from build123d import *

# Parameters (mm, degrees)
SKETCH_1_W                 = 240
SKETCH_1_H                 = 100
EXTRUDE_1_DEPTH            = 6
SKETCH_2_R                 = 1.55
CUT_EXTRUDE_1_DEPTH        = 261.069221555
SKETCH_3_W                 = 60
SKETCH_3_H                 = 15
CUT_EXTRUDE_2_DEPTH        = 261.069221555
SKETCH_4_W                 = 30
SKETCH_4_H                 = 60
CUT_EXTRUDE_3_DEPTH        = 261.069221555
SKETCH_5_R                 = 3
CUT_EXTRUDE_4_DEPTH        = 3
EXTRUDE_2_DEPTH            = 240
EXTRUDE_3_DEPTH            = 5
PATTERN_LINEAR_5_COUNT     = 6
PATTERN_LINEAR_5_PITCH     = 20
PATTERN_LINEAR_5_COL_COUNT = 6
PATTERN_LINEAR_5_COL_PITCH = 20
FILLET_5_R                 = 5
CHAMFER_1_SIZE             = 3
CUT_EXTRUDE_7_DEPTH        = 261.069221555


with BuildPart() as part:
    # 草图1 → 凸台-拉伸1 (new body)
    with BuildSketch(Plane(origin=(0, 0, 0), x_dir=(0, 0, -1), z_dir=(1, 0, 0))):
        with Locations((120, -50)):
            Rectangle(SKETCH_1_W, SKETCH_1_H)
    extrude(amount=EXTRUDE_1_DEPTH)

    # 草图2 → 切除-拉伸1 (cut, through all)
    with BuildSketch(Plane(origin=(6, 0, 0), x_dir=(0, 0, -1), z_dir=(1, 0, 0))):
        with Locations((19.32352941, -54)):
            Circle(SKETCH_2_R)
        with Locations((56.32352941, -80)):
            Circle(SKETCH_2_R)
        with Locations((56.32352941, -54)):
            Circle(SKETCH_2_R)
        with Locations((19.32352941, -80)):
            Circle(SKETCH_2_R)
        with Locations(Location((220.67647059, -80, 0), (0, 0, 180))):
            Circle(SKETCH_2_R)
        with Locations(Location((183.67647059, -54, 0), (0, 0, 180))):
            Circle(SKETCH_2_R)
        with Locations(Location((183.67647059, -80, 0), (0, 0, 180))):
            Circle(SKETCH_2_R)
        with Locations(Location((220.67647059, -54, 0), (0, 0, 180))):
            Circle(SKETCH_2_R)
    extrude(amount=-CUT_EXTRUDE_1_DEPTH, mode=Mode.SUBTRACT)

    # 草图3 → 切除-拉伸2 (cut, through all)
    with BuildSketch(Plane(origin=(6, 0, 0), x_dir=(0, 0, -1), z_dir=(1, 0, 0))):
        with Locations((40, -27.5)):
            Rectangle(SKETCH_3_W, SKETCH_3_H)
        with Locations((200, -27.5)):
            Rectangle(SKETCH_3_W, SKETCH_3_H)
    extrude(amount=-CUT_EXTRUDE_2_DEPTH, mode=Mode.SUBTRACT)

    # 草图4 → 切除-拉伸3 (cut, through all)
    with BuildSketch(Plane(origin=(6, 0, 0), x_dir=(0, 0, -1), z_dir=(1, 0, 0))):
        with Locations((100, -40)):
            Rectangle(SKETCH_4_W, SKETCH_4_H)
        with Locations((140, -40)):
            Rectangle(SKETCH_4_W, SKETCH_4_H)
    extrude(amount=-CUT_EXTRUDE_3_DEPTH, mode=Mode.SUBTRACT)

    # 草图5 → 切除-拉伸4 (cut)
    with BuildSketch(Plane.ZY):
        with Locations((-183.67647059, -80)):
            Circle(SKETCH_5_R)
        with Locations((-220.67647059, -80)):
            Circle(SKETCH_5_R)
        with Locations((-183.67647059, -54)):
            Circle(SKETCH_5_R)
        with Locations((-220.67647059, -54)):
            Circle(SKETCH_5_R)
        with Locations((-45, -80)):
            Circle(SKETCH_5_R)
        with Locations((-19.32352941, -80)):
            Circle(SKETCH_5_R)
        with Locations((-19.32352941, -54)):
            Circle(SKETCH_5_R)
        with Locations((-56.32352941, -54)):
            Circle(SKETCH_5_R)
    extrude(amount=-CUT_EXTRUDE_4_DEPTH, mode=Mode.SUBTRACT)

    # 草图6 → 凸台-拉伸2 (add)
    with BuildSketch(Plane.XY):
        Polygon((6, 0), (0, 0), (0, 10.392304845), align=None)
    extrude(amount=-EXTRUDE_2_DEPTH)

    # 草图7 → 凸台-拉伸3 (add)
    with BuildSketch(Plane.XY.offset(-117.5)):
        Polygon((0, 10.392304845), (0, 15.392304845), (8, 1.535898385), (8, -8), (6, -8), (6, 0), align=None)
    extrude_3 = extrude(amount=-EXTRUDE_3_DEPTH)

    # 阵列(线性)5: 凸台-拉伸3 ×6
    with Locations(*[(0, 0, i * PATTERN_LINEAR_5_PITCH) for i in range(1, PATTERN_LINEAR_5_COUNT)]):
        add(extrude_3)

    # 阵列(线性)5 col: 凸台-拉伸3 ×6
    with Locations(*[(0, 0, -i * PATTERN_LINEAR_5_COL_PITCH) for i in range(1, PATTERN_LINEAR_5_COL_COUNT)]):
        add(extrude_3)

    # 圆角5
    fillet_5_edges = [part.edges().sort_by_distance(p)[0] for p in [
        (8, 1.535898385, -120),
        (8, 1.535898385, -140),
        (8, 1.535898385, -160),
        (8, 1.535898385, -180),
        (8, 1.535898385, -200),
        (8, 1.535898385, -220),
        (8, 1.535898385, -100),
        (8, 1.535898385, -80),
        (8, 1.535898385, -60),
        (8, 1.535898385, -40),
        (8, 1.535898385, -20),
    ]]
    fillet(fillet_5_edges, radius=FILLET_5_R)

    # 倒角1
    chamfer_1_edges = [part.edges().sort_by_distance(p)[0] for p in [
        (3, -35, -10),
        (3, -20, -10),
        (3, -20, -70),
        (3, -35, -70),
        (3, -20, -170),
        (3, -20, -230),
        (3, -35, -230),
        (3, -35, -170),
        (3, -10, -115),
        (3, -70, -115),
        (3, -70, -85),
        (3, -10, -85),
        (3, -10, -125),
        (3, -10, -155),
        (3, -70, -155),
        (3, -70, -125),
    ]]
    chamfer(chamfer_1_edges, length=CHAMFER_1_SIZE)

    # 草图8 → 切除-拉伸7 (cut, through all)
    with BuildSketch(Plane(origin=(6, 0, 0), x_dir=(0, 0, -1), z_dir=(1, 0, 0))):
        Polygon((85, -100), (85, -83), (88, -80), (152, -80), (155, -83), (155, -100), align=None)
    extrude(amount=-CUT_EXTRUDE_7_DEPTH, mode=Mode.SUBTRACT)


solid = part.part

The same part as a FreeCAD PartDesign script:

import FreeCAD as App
import Part
import Sketcher
Q = App.Units.Quantity


def edges_at(feature, points):
    """Names of the edges that pass closest to the given points."""
    edges = feature.Shape.Edges
    near = lambda p: min(range(len(edges)), key=lambda i: edges[i].distToShape(Part.Vertex(*p))[0])
    return sorted({f"Edge{near(p) + 1}" for p in points})

doc = App.newDocument("Part")
body = doc.addObject("PartDesign::Body", "Body")

sketch1 = body.newObject("Sketcher::SketchObject", "Sketch")
sketch1.AttachmentSupport = (doc.getObject("YZ_Plane"), [""])
sketch1.MapMode = "FlatFace"
sketch1.addGeometry(Part.LineSegment(App.Vector(0, 0, 0), App.Vector(-100, 0, 0)), False)
sketch1.addGeometry(Part.LineSegment(App.Vector(-100, 0, 0), App.Vector(-100, -240, 0)), False)
sketch1.addGeometry(Part.LineSegment(App.Vector(-100, -240, 0), App.Vector(0, -240, 0)), False)
sketch1.addGeometry(Part.LineSegment(App.Vector(0, -240, 0), App.Vector(0, 0, 0)), False)
sketch1.addConstraint(Sketcher.Constraint("Coincident", 0, 2, 1, 1))
sketch1.addConstraint(Sketcher.Constraint("Coincident", 1, 2, 2, 1))
sketch1.addConstraint(Sketcher.Constraint("Coincident", 2, 2, 3, 1))
sketch1.addConstraint(Sketcher.Constraint("Coincident", 3, 2, 0, 1))
sketch1.addConstraint(Sketcher.Constraint("Horizontal", 0))
sketch1.addConstraint(Sketcher.Constraint("Vertical", 1))
sketch1.addConstraint(Sketcher.Constraint("Horizontal", 2))
sketch1.addConstraint(Sketcher.Constraint("Vertical", 3))
sketch1.addConstraint(Sketcher.Constraint("Coincident", 3, 2, -1, 1))
sketch1.addConstraint(Sketcher.Constraint("DistanceX", 0, 2, 0, 1, Q("100 mm")))
sketch1.addConstraint(Sketcher.Constraint("DistanceY", 1, 2, 1, 1, Q("240 mm")))
pad1 = body.newObject("PartDesign::Pad", "Pad")
pad1.Profile = sketch1
pad1.Length = 6

sketch2 = body.newObject("Sketcher::SketchObject", "Sketch001")
sketch2.AttachmentSupport = (doc.getObject("YZ_Plane"), [""])
sketch2.MapMode = "FlatFace"
sketch2.AttachmentOffset = App.Placement(App.Vector(0, 0, 6), App.Rotation())
sketch2.addGeometry(Part.Circle(App.Vector(-54, -19.3, 0), App.Vector(0, 0, 1), 1.6), False)
sketch2.addGeometry(Part.Circle(App.Vector(-80, -56.3, 0), App.Vector(0, 0, 1), 1.6), False)
sketch2.addGeometry(Part.Circle(App.Vector(-54, -56.3, 0), App.Vector(0, 0, 1), 1.6), False)
sketch2.addGeometry(Part.Circle(App.Vector(-80, -19.3, 0), App.Vector(0, 0, 1), 1.6), False)
sketch2.addGeometry(Part.Circle(App.Vector(-80, -220.7, 0), App.Vector(0, 0, 1), 1.6), False)
sketch2.addGeometry(Part.Circle(App.Vector(-54, -183.7, 0), App.Vector(0, 0, 1), 1.6), False)
sketch2.addGeometry(Part.Circle(App.Vector(-80, -183.7, 0), App.Vector(0, 0, 1), 1.6), False)
sketch2.addGeometry(Part.Circle(App.Vector(-54, -220.7, 0), App.Vector(0, 0, 1), 1.6), False)
sketch2.addConstraint(Sketcher.Constraint("Equal", 0, 1))
sketch2.addConstraint(Sketcher.Constraint("Equal", 1, 2))
sketch2.addConstraint(Sketcher.Constraint("Equal", 2, 3))
sketch2.addConstraint(Sketcher.Constraint("Equal", 3, 4))
sketch2.addConstraint(Sketcher.Constraint("Equal", 4, 5))
sketch2.addConstraint(Sketcher.Constraint("Equal", 5, 6))
sketch2.addConstraint(Sketcher.Constraint("Equal", 6, 7))
sketch2.addConstraint(Sketcher.Constraint("Horizontal", 1, 3, 2, 3))
sketch2.addConstraint(Sketcher.Constraint("Horizontal", 0, 3, 3, 3))
sketch2.addConstraint(Sketcher.Constraint("Horizontal", 5, 3, 6, 3))
sketch2.addConstraint(Sketcher.Constraint("Horizontal", 4, 3, 7, 3))
sketch2.addConstraint(Sketcher.Constraint("Vertical", 0, 3, 2, 3))
sketch2.addConstraint(Sketcher.Constraint("Vertical", 1, 3, 3, 3))
sketch2.addConstraint(Sketcher.Constraint("Vertical", 3, 3, 4, 3))
sketch2.addConstraint(Sketcher.Constraint("Vertical", 2, 3, 5, 3))
sketch2.addConstraint(Sketcher.Constraint("Vertical", 4, 3, 6, 3))
sketch2.addConstraint(Sketcher.Constraint("Vertical", 5, 3, 7, 3))
sketch2.addConstraint(Sketcher.Constraint("Diameter", 0, Q("3.1 mm")))
sketch2.addConstraint(Sketcher.Constraint("DistanceX", 0, 3, -1, 1, Q("54 mm")))
sketch2.addConstraint(Sketcher.Constraint("DistanceX", 1, 3, -1, 1, Q("80 mm")))
sketch2.addConstraint(Sketcher.Constraint("DistanceY", 1, 3, 0, 3, Q("37 mm")))
sketch2.addConstraint(Sketcher.Constraint("DistanceY", 4, 3, 5, 3, Q("37 mm")))
sketch2.addConstraint(Sketcher.Constraint("DistanceY", 0, 3, -1, 1, Q("19.323529 mm")))
sketch2.addConstraint(Sketcher.Constraint("DistanceY", 4, 3, -1, 1, Q("220.676471 mm")))
pocket1 = body.newObject("PartDesign::Pocket", "Pocket")
pocket1.Profile = sketch2
pocket1.Type = "ThroughAll"

sketch3 = body.newObject("Sketcher::SketchObject", "Sketch002")
sketch3.AttachmentSupport = (doc.getObject("YZ_Plane"), [""])
sketch3.MapMode = "FlatFace"
sketch3.AttachmentOffset = App.Placement(App.Vector(0, 0, 6), App.Rotation())
sketch3.addGeometry(Part.LineSegment(App.Vector(-20, -10, 0), App.Vector(-35, -10, 0)), False)
sketch3.addGeometry(Part.LineSegment(App.Vector(-35, -10, 0), App.Vector(-35, -70, 0)), False)
sketch3.addGeometry(Part.LineSegment(App.Vector(-35, -70, 0), App.Vector(-20, -70, 0)), False)
sketch3.addGeometry(Part.LineSegment(App.Vector(-20, -70, 0), App.Vector(-20, -10, 0)), False)
sketch3.addGeometry(Part.LineSegment(App.Vector(-20, -170, 0), App.Vector(-35, -170, 0)), False)
sketch3.addGeometry(Part.LineSegment(App.Vector(-35, -170, 0), App.Vector(-35, -230, 0)), False)
sketch3.addGeometry(Part.LineSegment(App.Vector(-35, -230, 0), App.Vector(-20, -230, 0)), False)
sketch3.addGeometry(Part.LineSegment(App.Vector(-20, -230, 0), App.Vector(-20, -170, 0)), False)
sketch3.addConstraint(Sketcher.Constraint("Coincident", 0, 2, 1, 1))
sketch3.addConstraint(Sketcher.Constraint("Coincident", 1, 2, 2, 1))
sketch3.addConstraint(Sketcher.Constraint("Coincident", 2, 2, 3, 1))
sketch3.addConstraint(Sketcher.Constraint("Coincident", 3, 2, 0, 1))
sketch3.addConstraint(Sketcher.Constraint("Coincident", 4, 2, 5, 1))
sketch3.addConstraint(Sketcher.Constraint("Coincident", 5, 2, 6, 1))
sketch3.addConstraint(Sketcher.Constraint("Coincident", 6, 2, 7, 1))
sketch3.addConstraint(Sketcher.Constraint("Coincident", 7, 2, 4, 1))
sketch3.addConstraint(Sketcher.Constraint("Horizontal", 0))
sketch3.addConstraint(Sketcher.Constraint("Vertical", 1))
sketch3.addConstraint(Sketcher.Constraint("Horizontal", 2))
sketch3.addConstraint(Sketcher.Constraint("Vertical", 3))
sketch3.addConstraint(Sketcher.Constraint("Horizontal", 4))
sketch3.addConstraint(Sketcher.Constraint("Vertical", 5))
sketch3.addConstraint(Sketcher.Constraint("Horizontal", 6))
sketch3.addConstraint(Sketcher.Constraint("Vertical", 7))
sketch3.addConstraint(Sketcher.Constraint("Vertical", 1, 2, 4, 2))
sketch3.addConstraint(Sketcher.Constraint("Vertical", 3, 2, 6, 2))
sketch3.addConstraint(Sketcher.Constraint("Equal", 3, 5))
sketch3.addConstraint(Sketcher.Constraint("DistanceX", 0, 2, 0, 1, Q("15 mm")))
sketch3.addConstraint(Sketcher.Constraint("DistanceY", 1, 2, 1, 1, Q("60 mm")))
sketch3.addConstraint(Sketcher.Constraint("DistanceX", 0, 2, -1, 1, Q("35 mm")))
sketch3.addConstraint(Sketcher.Constraint("DistanceY", 0, 2, -1, 1, Q("10 mm")))
sketch3.addConstraint(Sketcher.Constraint("DistanceY", 4, 2, -1, 1, Q("170 mm")))
pocket2 = body.newObject("PartDesign::Pocket", "Pocket001")
pocket2.Profile = sketch3
pocket2.Type = "ThroughAll"

sketch4 = body.newObject("Sketcher::SketchObject", "Sketch003")
sketch4.AttachmentSupport = (doc.getObject("YZ_Plane"), [""])
sketch4.MapMode = "FlatFace"
sketch4.AttachmentOffset = App.Placement(App.Vector(0, 0, 6), App.Rotation())
sketch4.addGeometry(Part.LineSegment(App.Vector(-10, -85, 0), App.Vector(-70, -85, 0)), False)
sketch4.addGeometry(Part.LineSegment(App.Vector(-70, -85, 0), App.Vector(-70, -115, 0)), False)
sketch4.addGeometry(Part.LineSegment(App.Vector(-70, -115, 0), App.Vector(-10, -115, 0)), False)
sketch4.addGeometry(Part.LineSegment(App.Vector(-10, -115, 0), App.Vector(-10, -85, 0)), False)
sketch4.addGeometry(Part.LineSegment(App.Vector(-10, -125, 0), App.Vector(-70, -125, 0)), False)
sketch4.addGeometry(Part.LineSegment(App.Vector(-70, -125, 0), App.Vector(-70, -155, 0)), False)
sketch4.addGeometry(Part.LineSegment(App.Vector(-70, -155, 0), App.Vector(-10, -155, 0)), False)
sketch4.addGeometry(Part.LineSegment(App.Vector(-10, -155, 0), App.Vector(-10, -125, 0)), False)
sketch4.addConstraint(Sketcher.Constraint("Coincident", 0, 2, 1, 1))
sketch4.addConstraint(Sketcher.Constraint("Coincident", 1, 2, 2, 1))
sketch4.addConstraint(Sketcher.Constraint("Coincident", 2, 2, 3, 1))
sketch4.addConstraint(Sketcher.Constraint("Coincident", 3, 2, 0, 1))
sketch4.addConstraint(Sketcher.Constraint("Coincident", 4, 2, 5, 1))
sketch4.addConstraint(Sketcher.Constraint("Coincident", 5, 2, 6, 1))
sketch4.addConstraint(Sketcher.Constraint("Coincident", 6, 2, 7, 1))
sketch4.addConstraint(Sketcher.Constraint("Coincident", 7, 2, 4, 1))
sketch4.addConstraint(Sketcher.Constraint("Horizontal", 0))
sketch4.addConstraint(Sketcher.Constraint("Vertical", 1))
sketch4.addConstraint(Sketcher.Constraint("Horizontal", 2))
sketch4.addConstraint(Sketcher.Constraint("Vertical", 3))
sketch4.addConstraint(Sketcher.Constraint("Horizontal", 4))
sketch4.addConstraint(Sketcher.Constraint("Vertical", 5))
sketch4.addConstraint(Sketcher.Constraint("Horizontal", 6))
sketch4.addConstraint(Sketcher.Constraint("Vertical", 7))
sketch4.addConstraint(Sketcher.Constraint("Vertical", 1, 2, 4, 2))
sketch4.addConstraint(Sketcher.Constraint("Vertical", 3, 2, 6, 2))
sketch4.addConstraint(Sketcher.Constraint("Equal", 3, 5))
sketch4.addConstraint(Sketcher.Constraint("DistanceX", 0, 2, 0, 1, Q("60 mm")))
sketch4.addConstraint(Sketcher.Constraint("DistanceY", 1, 2, 1, 1, Q("30 mm")))
sketch4.addConstraint(Sketcher.Constraint("DistanceX", 0, 2, -1, 1, Q("70 mm")))
sketch4.addConstraint(Sketcher.Constraint("DistanceY", 0, 2, -1, 1, Q("85 mm")))
sketch4.addConstraint(Sketcher.Constraint("DistanceY", 4, 2, -1, 1, Q("125 mm")))
pocket3 = body.newObject("PartDesign::Pocket", "Pocket002")
pocket3.Profile = sketch4
pocket3.Type = "ThroughAll"

sketch5 = body.newObject("Sketcher::SketchObject", "Sketch004")
sketch5.AttachmentSupport = (doc.getObject("YZ_Plane"), [""])
sketch5.MapMode = "FlatFace"
sketch5.addGeometry(Part.Circle(App.Vector(-80, -183.7, 0), App.Vector(0, 0, 1), 3), False)
sketch5.addGeometry(Part.Circle(App.Vector(-80, -220.7, 0), App.Vector(0, 0, 1), 3), False)
sketch5.addGeometry(Part.Circle(App.Vector(-54, -183.7, 0), App.Vector(0, 0, 1), 3), False)
sketch5.addGeometry(Part.Circle(App.Vector(-54, -220.7, 0), App.Vector(0, 0, 1), 3), False)
sketch5.addGeometry(Part.Circle(App.Vector(-80, -45, 0), App.Vector(0, 0, 1), 3), False)
sketch5.addGeometry(Part.Circle(App.Vector(-80, -19.3, 0), App.Vector(0, 0, 1), 3), False)
sketch5.addGeometry(Part.Circle(App.Vector(-54, -19.3, 0), App.Vector(0, 0, 1), 3), False)
sketch5.addGeometry(Part.Circle(App.Vector(-54, -56.3, 0), App.Vector(0, 0, 1), 3), False)
sketch5.addConstraint(Sketcher.Constraint("Equal", 0, 1))
sketch5.addConstraint(Sketcher.Constraint("Equal", 1, 2))
sketch5.addConstraint(Sketcher.Constraint("Equal", 2, 3))
sketch5.addConstraint(Sketcher.Constraint("Equal", 3, 4))
sketch5.addConstraint(Sketcher.Constraint("Equal", 4, 5))
sketch5.addConstraint(Sketcher.Constraint("Equal", 5, 6))
sketch5.addConstraint(Sketcher.Constraint("Equal", 6, 7))
sketch5.addConstraint(Sketcher.Constraint("Horizontal", 0, 3, 2, 3))
sketch5.addConstraint(Sketcher.Constraint("Horizontal", 1, 3, 3, 3))
sketch5.addConstraint(Sketcher.Constraint("Horizontal", 5, 3, 6, 3))
sketch5.addConstraint(Sketcher.Constraint("Vertical", 0, 3, 1, 3))
sketch5.addConstraint(Sketcher.Constraint("Vertical", 2, 3, 3, 3))
sketch5.addConstraint(Sketcher.Constraint("Vertical", 1, 3, 4, 3))
sketch5.addConstraint(Sketcher.Constraint("Vertical", 4, 3, 5, 3))
sketch5.addConstraint(Sketcher.Constraint("Vertical", 3, 3, 6, 3))
sketch5.addConstraint(Sketcher.Constraint("Vertical", 6, 3, 7, 3))
sketch5.addConstraint(Sketcher.Constraint("Diameter", 0, Q("6 mm")))
sketch5.addConstraint(Sketcher.Constraint("DistanceX", 0, 3, -1, 1, Q("80 mm")))
sketch5.addConstraint(Sketcher.Constraint("DistanceX", 2, 3, -1, 1, Q("54 mm")))
sketch5.addConstraint(Sketcher.Constraint("DistanceY", 4, 3, -1, 1, Q("45 mm")))
sketch5.addConstraint(Sketcher.Constraint("DistanceY", 1, 3, 0, 3, Q("37 mm")))
sketch5.addConstraint(Sketcher.Constraint("DistanceY", 7, 3, 6, 3, Q("37 mm")))
sketch5.addConstraint(Sketcher.Constraint("DistanceY", 0, 3, -1, 1, Q("183.676471 mm")))
sketch5.addConstraint(Sketcher.Constraint("DistanceY", 5, 3, -1, 1, Q("19.323529 mm")))
pocket4 = body.newObject("PartDesign::Pocket", "Pocket003")
pocket4.Profile = sketch5
pocket4.Length = 3
pocket4.Reversed = True

sketch6 = body.newObject("Sketcher::SketchObject", "Sketch005")
sketch6.AttachmentSupport = (doc.getObject("XY_Plane"), [""])
sketch6.MapMode = "FlatFace"
sketch6.addGeometry(Part.LineSegment(App.Vector(0, 0, 0), App.Vector(6, 0, 0)), False)
sketch6.addGeometry(Part.LineSegment(App.Vector(6, 0, 0), App.Vector(0, 10, 0)), False)
sketch6.addGeometry(Part.LineSegment(App.Vector(0, 10, 0), App.Vector(0, 0, 0)), False)
sketch6.addConstraint(Sketcher.Constraint("Coincident", 0, 2, 1, 1))
sketch6.addConstraint(Sketcher.Constraint("Coincident", 1, 2, 2, 1))
sketch6.addConstraint(Sketcher.Constraint("Coincident", 2, 2, 0, 1))
sketch6.addConstraint(Sketcher.Constraint("Horizontal", 0))
sketch6.addConstraint(Sketcher.Constraint("Vertical", 2))
sketch6.addConstraint(Sketcher.Constraint("Coincident", 2, 2, -1, 1))
sketch6.addConstraint(Sketcher.Constraint("DistanceX", 0, 1, 0, 2, Q("6 mm")))
sketch6.addConstraint(Sketcher.Constraint("Angle", 1, Q("120 deg")))
pad2 = body.newObject("PartDesign::Pad", "Pad001")
pad2.Profile = sketch6
pad2.Length = 240
pad2.Reversed = True

sketch7 = body.newObject("Sketcher::SketchObject", "Sketch006")
sketch7.AttachmentSupport = (doc.getObject("XY_Plane"), [""])
sketch7.MapMode = "FlatFace"
sketch7.AttachmentOffset = App.Placement(App.Vector(0, 0, -117.5), App.Rotation())
sketch7.addGeometry(Part.LineSegment(App.Vector(0, 15.4, 0), App.Vector(0, 10.4, 0)), False)
sketch7.addGeometry(Part.LineSegment(App.Vector(0, 10.4, 0), App.Vector(6, 0, 0)), False)
sketch7.addGeometry(Part.LineSegment(App.Vector(6, 0, 0), App.Vector(6, -8, 0)), False)
sketch7.addGeometry(Part.LineSegment(App.Vector(6, -8, 0), App.Vector(8, -8, 0)), False)
sketch7.addGeometry(Part.LineSegment(App.Vector(8, -8, 0), App.Vector(8, 1.5, 0)), False)
sketch7.addGeometry(Part.LineSegment(App.Vector(8, 1.5, 0), App.Vector(0, 15.4, 0)), False)
sketch7.addConstraint(Sketcher.Constraint("Coincident", 0, 2, 1, 1))
sketch7.addConstraint(Sketcher.Constraint("Coincident", 1, 2, 2, 1))
sketch7.addConstraint(Sketcher.Constraint("Coincident", 2, 2, 3, 1))
sketch7.addConstraint(Sketcher.Constraint("Coincident", 3, 2, 4, 1))
sketch7.addConstraint(Sketcher.Constraint("Coincident", 4, 2, 5, 1))
sketch7.addConstraint(Sketcher.Constraint("Coincident", 5, 2, 0, 1))
sketch7.addConstraint(Sketcher.Constraint("Vertical", 0))
sketch7.addConstraint(Sketcher.Constraint("Vertical", 2))
sketch7.addConstraint(Sketcher.Constraint("Horizontal", 3))
sketch7.addConstraint(Sketcher.Constraint("Vertical", 4))
sketch7.addConstraint(Sketcher.Constraint("PointOnObject", 0, 2, -2))
sketch7.addConstraint(Sketcher.Constraint("PointOnObject", 1, 2, -1))
sketch7.addConstraint(Sketcher.Constraint("Parallel", 1, 5))
sketch7.addConstraint(Sketcher.Constraint("DistanceX", 3, 1, 3, 2, Q("2 mm")))
sketch7.addConstraint(Sketcher.Constraint("DistanceY", 0, 2, 0, 1, Q("5 mm")))
sketch7.addConstraint(Sketcher.Constraint("DistanceY", 2, 2, 2, 1, Q("8 mm")))
sketch7.addConstraint(Sketcher.Constraint("Angle", 1, Q("-60 deg")))
sketch7.addConstraint(Sketcher.Constraint("Distance", 1, Q("12 mm")))
pad3 = body.newObject("PartDesign::Pad", "Pad002")
pad3.Profile = sketch7
pad3.Length = 5
pad3.Reversed = True
doc.recompute()

linearpattern = body.newObject("PartDesign::LinearPattern", "LinearPattern")
linearpattern.Originals = [pad3]
linearpattern.Direction = (doc.getObject("Z_Axis"), [""])
linearpattern.Mode = "offset"
linearpattern.Offset = 20
linearpattern.Occurrences = 6
body.Tip = linearpattern
doc.recompute()

linearpattern2 = body.newObject("PartDesign::LinearPattern", "LinearPattern001")
linearpattern2.Originals = [pad3]
linearpattern2.Direction = (doc.getObject("Z_Axis"), [""])
linearpattern2.Mode = "offset"
linearpattern2.Offset = 20
linearpattern2.Occurrences = 6
linearpattern2.Reversed = True
body.Tip = linearpattern2
doc.recompute()

fillet = body.newObject("PartDesign::Fillet", "Fillet")
fillet.Base = (linearpattern2, edges_at(linearpattern2, [
    (8, 1.536, -120),
    (8, 1.536, -140),
    (8, 1.536, -160),
    (8, 1.536, -180),
    (8, 1.536, -200),
    (8, 1.536, -220),
    (8, 1.536, -100),
    (8, 1.536, -80),
    (8, 1.536, -60),
    (8, 1.536, -40),
    (8, 1.536, -20),
]))
fillet.Radius = 5
doc.recompute()

chamfer = body.newObject("PartDesign::Chamfer", "Chamfer")
chamfer.Base = (fillet, edges_at(fillet, [
    (3, -35, -10),
    (3, -20, -10),
    (3, -20, -70),
    (3, -35, -70),
    (3, -20, -170),
    (3, -20, -230),
    (3, -35, -230),
    (3, -35, -170),
    (3, -10, -115),
    (3, -70, -115),
    (3, -70, -85),
    (3, -10, -85),
    (3, -10, -125),
    (3, -10, -155),
    (3, -70, -155),
    (3, -70, -125),
]))
chamfer.Size = 3

sketch8 = body.newObject("Sketcher::SketchObject", "Sketch007")
sketch8.AttachmentSupport = (doc.getObject("YZ_Plane"), [""])
sketch8.MapMode = "FlatFace"
sketch8.AttachmentOffset = App.Placement(App.Vector(0, 0, 6), App.Rotation())
sketch8.addGeometry(Part.LineSegment(App.Vector(-83, -85, 0), App.Vector(-100, -85, 0)), False)
sketch8.addGeometry(Part.LineSegment(App.Vector(-100, -85, 0), App.Vector(-100, -155, 0)), False)
sketch8.addGeometry(Part.LineSegment(App.Vector(-100, -155, 0), App.Vector(-83, -155, 0)), False)
sketch8.addGeometry(Part.LineSegment(App.Vector(-83, -155, 0), App.Vector(-80, -152, 0)), False)
sketch8.addGeometry(Part.LineSegment(App.Vector(-80, -152, 0), App.Vector(-80, -88, 0)), False)
sketch8.addGeometry(Part.LineSegment(App.Vector(-80, -88, 0), App.Vector(-83, -85, 0)), False)
sketch8.addConstraint(Sketcher.Constraint("Coincident", 0, 2, 1, 1))
sketch8.addConstraint(Sketcher.Constraint("Coincident", 1, 2, 2, 1))
sketch8.addConstraint(Sketcher.Constraint("Coincident", 2, 2, 3, 1))
sketch8.addConstraint(Sketcher.Constraint("Coincident", 3, 2, 4, 1))
sketch8.addConstraint(Sketcher.Constraint("Coincident", 4, 2, 5, 1))
sketch8.addConstraint(Sketcher.Constraint("Coincident", 5, 2, 0, 1))
sketch8.addConstraint(Sketcher.Constraint("Horizontal", 0))
sketch8.addConstraint(Sketcher.Constraint("Vertical", 1))
sketch8.addConstraint(Sketcher.Constraint("Horizontal", 2))
sketch8.addConstraint(Sketcher.Constraint("Vertical", 4))
sketch8.addConstraint(Sketcher.Constraint("Perpendicular", 3, 5))
sketch8.addConstraint(Sketcher.Constraint("Vertical", 2, 2, 5, 2))
sketch8.addConstraint(Sketcher.Constraint("Equal", 3, 5))
sketch8.addConstraint(Sketcher.Constraint("DistanceX", 0, 2, 0, 1, Q("17 mm")))
sketch8.addConstraint(Sketcher.Constraint("DistanceY", 1, 2, 1, 1, Q("70 mm")))
sketch8.addConstraint(Sketcher.Constraint("DistanceY", 4, 1, 4, 2, Q("64 mm")))
sketch8.addConstraint(Sketcher.Constraint("DistanceX", 0, 2, -1, 1, Q("100 mm")))
sketch8.addConstraint(Sketcher.Constraint("DistanceY", 0, 2, -1, 1, Q("85 mm")))
pocket5 = body.newObject("PartDesign::Pocket", "Pocket004")
pocket5.Profile = sketch8
pocket5.Type = "ThroughAll"

doc.recompute()
